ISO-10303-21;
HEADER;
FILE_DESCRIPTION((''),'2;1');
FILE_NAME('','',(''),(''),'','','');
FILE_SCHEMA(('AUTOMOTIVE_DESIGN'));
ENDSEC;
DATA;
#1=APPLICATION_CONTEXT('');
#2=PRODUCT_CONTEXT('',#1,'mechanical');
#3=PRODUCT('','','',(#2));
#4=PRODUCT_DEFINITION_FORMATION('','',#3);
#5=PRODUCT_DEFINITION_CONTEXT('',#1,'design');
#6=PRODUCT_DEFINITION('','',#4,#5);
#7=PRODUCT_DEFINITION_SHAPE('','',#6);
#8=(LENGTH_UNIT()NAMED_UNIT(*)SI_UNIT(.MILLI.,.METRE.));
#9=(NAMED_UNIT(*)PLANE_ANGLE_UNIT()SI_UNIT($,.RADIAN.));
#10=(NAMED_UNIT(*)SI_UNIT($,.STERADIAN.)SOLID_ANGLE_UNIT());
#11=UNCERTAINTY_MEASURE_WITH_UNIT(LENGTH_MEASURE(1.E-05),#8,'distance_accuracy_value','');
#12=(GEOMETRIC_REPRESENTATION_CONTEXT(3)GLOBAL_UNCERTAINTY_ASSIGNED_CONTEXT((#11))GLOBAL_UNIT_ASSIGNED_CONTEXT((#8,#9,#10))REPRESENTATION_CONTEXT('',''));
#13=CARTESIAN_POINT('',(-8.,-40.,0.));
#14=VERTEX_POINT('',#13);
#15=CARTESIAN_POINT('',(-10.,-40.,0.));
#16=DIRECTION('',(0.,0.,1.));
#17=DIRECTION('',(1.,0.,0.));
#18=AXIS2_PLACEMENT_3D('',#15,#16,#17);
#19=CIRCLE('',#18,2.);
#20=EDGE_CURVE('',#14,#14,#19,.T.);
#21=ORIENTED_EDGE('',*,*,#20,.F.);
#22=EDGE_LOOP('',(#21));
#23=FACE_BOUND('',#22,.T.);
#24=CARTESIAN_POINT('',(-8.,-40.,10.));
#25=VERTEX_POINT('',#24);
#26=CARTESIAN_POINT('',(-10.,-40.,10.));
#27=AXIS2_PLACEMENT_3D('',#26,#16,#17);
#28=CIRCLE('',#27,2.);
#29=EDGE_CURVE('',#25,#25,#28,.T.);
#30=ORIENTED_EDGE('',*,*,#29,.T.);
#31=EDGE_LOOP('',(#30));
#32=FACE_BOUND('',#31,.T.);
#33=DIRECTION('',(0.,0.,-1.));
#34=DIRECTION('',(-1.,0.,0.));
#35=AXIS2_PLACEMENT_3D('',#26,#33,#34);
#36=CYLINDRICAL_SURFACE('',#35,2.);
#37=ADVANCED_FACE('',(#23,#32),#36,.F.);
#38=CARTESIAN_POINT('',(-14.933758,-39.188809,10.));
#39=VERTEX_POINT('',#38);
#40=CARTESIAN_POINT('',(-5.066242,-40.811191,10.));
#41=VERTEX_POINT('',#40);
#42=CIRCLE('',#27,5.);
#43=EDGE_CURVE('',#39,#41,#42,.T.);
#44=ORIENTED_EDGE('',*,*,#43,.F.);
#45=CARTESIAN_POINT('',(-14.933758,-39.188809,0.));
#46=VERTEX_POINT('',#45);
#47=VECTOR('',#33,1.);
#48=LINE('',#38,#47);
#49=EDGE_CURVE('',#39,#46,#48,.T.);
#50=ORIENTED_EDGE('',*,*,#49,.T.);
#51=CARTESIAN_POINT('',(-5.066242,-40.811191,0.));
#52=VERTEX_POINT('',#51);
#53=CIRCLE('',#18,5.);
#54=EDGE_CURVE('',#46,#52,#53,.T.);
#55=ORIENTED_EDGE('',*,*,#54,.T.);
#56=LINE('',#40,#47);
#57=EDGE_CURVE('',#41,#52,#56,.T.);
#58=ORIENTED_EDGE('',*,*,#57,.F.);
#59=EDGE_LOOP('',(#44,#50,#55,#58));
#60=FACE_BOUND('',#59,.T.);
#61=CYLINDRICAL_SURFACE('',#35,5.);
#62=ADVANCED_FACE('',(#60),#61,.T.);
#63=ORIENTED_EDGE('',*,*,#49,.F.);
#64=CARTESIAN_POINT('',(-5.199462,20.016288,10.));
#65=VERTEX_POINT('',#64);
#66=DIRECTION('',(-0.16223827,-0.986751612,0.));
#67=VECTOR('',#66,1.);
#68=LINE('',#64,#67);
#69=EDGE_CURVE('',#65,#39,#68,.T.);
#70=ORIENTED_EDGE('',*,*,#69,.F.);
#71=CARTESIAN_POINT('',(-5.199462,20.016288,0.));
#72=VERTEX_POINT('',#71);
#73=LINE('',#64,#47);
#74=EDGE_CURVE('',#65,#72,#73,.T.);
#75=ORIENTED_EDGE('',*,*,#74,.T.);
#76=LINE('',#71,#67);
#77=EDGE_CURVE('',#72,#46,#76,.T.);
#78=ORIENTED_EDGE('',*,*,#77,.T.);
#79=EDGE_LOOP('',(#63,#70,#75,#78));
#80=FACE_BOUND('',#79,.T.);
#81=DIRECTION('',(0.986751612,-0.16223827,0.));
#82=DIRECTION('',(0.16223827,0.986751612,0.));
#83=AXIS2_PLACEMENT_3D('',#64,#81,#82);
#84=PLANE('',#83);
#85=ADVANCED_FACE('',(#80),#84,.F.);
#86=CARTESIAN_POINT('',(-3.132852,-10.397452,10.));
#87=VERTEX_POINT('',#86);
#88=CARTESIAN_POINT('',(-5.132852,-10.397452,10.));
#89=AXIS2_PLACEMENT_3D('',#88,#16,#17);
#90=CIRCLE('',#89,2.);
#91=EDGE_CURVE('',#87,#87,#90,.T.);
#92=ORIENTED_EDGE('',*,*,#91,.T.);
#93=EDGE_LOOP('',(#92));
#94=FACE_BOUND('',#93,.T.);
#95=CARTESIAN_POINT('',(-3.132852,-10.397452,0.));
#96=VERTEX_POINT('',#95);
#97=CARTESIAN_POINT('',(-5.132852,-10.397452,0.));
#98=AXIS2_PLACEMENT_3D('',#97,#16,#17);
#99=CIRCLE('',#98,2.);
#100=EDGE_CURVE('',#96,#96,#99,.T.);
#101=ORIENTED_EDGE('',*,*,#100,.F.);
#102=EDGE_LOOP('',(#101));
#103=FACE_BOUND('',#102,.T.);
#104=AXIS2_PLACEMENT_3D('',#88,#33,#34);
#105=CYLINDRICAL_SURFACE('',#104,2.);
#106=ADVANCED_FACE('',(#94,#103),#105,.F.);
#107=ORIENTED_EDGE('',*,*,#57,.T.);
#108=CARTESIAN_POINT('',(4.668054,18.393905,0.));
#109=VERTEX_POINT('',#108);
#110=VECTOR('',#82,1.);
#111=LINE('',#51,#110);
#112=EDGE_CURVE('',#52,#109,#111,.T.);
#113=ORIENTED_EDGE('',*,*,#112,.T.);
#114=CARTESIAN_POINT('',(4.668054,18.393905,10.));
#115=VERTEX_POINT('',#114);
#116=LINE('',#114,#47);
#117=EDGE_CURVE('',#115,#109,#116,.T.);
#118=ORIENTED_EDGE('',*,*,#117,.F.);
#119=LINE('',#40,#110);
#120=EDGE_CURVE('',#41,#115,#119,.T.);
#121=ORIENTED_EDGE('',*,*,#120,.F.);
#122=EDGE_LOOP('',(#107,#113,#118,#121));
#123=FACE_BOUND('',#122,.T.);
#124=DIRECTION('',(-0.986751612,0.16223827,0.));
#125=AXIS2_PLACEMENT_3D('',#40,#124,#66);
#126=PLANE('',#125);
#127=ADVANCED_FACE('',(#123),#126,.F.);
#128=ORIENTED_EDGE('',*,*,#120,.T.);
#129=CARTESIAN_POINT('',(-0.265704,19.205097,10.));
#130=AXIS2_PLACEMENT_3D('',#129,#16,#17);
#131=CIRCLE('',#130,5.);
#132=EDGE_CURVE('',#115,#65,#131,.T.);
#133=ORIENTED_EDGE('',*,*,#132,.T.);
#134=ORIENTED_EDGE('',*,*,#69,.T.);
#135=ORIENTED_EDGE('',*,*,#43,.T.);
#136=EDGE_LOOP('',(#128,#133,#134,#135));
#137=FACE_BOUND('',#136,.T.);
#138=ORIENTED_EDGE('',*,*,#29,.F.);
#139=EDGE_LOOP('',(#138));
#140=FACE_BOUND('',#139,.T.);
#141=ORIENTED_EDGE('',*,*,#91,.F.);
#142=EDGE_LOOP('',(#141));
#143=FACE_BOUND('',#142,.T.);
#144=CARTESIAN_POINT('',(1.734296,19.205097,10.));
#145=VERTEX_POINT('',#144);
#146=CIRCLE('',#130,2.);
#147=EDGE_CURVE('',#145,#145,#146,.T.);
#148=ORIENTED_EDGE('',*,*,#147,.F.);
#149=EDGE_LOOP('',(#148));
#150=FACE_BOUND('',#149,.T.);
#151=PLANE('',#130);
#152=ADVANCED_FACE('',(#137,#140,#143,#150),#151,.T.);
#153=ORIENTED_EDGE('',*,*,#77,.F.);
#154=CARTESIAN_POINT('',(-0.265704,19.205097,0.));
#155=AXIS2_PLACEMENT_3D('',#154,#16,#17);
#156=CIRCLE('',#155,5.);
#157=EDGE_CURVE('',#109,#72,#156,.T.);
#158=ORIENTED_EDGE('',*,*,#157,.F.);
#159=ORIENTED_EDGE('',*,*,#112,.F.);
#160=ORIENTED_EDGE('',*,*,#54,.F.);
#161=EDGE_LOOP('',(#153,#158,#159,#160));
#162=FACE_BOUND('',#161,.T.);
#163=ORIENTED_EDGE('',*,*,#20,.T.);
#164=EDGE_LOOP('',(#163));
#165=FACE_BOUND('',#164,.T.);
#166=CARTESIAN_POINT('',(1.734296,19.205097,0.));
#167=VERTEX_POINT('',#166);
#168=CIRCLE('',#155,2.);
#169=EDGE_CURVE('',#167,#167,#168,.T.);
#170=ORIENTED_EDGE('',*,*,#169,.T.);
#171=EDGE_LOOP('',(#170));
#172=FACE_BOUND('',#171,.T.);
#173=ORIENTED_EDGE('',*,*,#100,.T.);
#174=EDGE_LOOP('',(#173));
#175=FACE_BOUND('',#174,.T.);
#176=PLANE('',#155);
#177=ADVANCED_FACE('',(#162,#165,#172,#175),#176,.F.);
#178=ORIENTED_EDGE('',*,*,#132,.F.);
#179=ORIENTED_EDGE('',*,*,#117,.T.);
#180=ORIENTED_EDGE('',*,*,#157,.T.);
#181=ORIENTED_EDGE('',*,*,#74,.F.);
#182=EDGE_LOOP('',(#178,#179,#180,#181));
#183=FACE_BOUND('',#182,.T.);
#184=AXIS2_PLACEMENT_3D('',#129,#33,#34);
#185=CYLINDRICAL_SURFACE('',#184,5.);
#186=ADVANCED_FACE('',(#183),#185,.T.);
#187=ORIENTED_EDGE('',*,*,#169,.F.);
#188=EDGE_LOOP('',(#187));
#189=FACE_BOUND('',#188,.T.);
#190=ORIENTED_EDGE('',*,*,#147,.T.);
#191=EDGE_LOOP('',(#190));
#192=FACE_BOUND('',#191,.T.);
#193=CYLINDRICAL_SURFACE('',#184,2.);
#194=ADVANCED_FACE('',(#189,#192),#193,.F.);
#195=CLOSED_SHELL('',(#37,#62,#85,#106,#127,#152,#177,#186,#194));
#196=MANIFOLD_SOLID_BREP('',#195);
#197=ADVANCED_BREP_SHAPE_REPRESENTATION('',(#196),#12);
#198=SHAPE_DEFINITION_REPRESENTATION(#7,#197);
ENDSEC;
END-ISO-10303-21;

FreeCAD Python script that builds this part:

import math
import FreeCAD as App
import Part
import Sketcher

doc = App.newDocument("Part")
body = doc.addObject("PartDesign::Body", "Body")

# Sketch on XY plane
sketch1 = body.newObject("Sketcher::SketchObject", "Sketch")
sketch1.AttachmentSupport = (doc.getObject("XY_Plane"), [""])
sketch1.MapMode = "FlatFace"
sketch1.addGeometry([
    Part.LineSegment(App.Vector(-5.2, 20, 0), App.Vector(-14.9, -39.2, 0)),  # 0
    Part.ArcOfCircle(Part.Circle(App.Vector(-10, -40, 0), App.Vector(0, 0, 1), 5), math.radians(171), math.radians(351)),  # 1
    Part.LineSegment(App.Vector(-5.1, -40.8, 0), App.Vector(4.7, 18.4, 0)),  # 2
    Part.ArcOfCircle(Part.Circle(App.Vector(-0.3, 19.2, 0), App.Vector(0, 0, 1), 5), math.radians(-9), math.radians(171)),  # 3
    Part.Circle(App.Vector(-10, -40, 0), App.Vector(0, 0, 1), 2),  # 4
    Part.Circle(App.Vector(-5.1, -10.4, 0), App.Vector(0, 0, 1), 2),  # 5
    Part.Circle(App.Vector(-0.3, 19.2, 0), App.Vector(0, 0, 1), 2),  # 6
], False)
sketch1.addConstraint([
    Sketcher.Constraint("Tangent", 0, 2, 1, 1),
    Sketcher.Constraint("Tangent", 1, 2, 2, 1),
    Sketcher.Constraint("Tangent", 2, 2, 3, 1),
    Sketcher.Constraint("Tangent", 3, 2, 0, 1),
    Sketcher.Constraint("Coincident", 4, 3, 1, 3),
    Sketcher.Constraint("Coincident", 6, 3, 3, 3),
    Sketcher.Constraint("Equal", 1, 3),
    Sketcher.Constraint("Equal", 4, 5),
    Sketcher.Constraint("Equal", 5, 6),
    Sketcher.Constraint("Diameter", 4, 4.0),
    Sketcher.Constraint("Radius", 1, 5.0),
    Sketcher.Constraint("Distance", 0, 60.0),
    Sketcher.Constraint("DistanceX", 1, 3, -1, 1, 10.0),
    Sketcher.Constraint("DistanceY", 1, 3, -1, 1, 40.0),
    Sketcher.Constraint("DistanceX", 5, 3, -1, 1, 5.132852),
    Sketcher.Constraint("DistanceY", 5, 3, -1, 1, 10.397452),
    Sketcher.Constraint("DistanceX", 0, 2, -1, 1, 14.933758),
])
pad1 = body.newObject("PartDesign::Pad", "Pad")
pad1.Profile = sketch1
pad1.Length = 10

doc.recompute()
